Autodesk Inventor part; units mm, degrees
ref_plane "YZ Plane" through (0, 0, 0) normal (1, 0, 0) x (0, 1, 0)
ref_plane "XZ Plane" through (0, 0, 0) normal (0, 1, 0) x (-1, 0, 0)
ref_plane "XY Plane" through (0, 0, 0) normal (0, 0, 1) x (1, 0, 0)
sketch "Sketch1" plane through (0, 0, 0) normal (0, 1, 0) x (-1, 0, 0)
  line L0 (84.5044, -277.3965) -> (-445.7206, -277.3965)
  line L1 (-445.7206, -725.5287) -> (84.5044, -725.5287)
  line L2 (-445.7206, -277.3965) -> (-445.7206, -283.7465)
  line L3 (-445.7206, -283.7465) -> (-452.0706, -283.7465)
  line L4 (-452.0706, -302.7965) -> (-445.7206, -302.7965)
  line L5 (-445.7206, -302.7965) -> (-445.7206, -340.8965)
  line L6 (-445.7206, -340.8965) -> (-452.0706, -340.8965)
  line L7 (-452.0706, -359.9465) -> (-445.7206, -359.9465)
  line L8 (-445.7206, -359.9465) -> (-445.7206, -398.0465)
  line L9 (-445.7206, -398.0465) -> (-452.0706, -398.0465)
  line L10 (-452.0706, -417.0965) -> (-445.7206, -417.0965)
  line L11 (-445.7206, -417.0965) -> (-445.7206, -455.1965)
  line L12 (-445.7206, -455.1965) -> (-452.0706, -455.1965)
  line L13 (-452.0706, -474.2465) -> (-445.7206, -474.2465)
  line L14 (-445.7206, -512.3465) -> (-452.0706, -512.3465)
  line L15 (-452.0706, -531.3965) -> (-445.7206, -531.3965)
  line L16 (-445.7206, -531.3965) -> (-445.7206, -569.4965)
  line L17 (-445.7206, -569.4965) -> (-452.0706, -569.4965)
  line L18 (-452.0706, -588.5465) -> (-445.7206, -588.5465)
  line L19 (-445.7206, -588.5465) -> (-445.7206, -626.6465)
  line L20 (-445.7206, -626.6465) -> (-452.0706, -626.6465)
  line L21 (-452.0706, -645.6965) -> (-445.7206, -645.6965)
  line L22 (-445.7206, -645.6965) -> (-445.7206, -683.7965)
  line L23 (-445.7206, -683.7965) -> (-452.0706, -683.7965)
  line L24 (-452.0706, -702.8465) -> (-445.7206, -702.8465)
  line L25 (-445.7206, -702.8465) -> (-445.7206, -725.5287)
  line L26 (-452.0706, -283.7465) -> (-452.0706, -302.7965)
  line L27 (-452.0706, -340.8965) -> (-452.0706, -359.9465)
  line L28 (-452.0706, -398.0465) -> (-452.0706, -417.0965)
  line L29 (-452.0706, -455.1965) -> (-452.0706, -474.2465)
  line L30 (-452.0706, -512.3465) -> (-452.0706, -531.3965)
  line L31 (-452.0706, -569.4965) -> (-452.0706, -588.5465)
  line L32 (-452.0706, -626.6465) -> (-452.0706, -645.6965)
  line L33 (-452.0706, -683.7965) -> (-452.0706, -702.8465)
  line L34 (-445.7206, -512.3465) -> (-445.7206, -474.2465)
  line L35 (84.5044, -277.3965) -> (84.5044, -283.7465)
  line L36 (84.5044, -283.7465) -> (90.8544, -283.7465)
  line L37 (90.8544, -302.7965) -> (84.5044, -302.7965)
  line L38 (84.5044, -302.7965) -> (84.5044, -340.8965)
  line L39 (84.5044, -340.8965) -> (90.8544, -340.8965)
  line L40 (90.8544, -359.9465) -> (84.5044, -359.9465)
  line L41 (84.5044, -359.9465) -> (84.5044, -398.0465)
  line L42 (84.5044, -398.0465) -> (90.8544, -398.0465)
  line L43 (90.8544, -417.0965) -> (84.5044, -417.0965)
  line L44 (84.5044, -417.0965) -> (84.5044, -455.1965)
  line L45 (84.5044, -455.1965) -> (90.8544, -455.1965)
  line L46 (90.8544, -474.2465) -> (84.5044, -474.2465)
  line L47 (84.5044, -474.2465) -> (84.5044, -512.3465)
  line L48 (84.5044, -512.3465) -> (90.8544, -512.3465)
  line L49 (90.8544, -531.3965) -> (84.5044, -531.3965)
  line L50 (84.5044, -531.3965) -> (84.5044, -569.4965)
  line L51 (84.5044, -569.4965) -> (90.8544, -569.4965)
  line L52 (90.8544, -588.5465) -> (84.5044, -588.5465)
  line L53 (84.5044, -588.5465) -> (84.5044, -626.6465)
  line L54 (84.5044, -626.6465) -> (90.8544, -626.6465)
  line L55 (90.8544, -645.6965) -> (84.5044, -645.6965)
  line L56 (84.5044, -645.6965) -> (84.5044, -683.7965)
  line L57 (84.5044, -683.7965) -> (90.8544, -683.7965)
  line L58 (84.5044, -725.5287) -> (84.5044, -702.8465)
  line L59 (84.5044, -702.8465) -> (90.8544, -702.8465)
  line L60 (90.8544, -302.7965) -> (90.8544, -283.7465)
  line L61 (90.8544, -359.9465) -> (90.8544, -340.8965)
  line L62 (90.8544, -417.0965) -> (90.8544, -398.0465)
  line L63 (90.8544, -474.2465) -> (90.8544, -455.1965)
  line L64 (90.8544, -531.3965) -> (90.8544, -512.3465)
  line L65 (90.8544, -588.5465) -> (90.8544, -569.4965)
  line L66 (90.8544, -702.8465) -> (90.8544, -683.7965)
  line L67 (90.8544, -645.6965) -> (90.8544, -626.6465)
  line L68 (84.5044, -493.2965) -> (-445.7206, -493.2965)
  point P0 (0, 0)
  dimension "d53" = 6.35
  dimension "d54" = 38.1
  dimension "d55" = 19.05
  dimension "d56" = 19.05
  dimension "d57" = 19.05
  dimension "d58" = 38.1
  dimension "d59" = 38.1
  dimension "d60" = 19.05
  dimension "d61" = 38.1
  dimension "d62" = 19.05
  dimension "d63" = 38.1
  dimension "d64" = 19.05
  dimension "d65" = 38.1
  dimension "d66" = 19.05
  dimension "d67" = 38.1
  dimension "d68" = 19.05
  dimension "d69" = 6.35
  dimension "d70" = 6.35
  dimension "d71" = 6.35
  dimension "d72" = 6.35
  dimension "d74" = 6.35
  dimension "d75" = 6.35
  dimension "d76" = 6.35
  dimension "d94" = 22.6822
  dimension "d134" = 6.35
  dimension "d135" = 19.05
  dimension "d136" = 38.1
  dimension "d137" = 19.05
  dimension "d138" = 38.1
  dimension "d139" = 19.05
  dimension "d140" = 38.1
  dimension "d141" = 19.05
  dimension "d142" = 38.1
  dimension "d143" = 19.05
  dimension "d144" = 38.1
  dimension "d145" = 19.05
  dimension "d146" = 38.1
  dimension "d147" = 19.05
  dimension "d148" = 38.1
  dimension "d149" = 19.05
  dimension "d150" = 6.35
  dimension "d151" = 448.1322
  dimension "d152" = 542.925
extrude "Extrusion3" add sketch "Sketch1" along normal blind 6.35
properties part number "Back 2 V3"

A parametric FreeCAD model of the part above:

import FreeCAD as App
import Part
import Sketcher

V = App.Vector
Q = App.Units.Quantity

doc = App.newDocument("Part")
params = doc.addObject("Spreadsheet::Sheet", "Params")
for row, (alias, value) in enumerate([
    ("sketch1_height", "1.5 in"),
    ("sketch1_width", "0.25 in"),
    ("sketch1_height2", "0.75 in"),
    ("sketch1_height3", "0.893 in"),
    ("sketch1_width2", "20.875 in"),
    ("pad1_length", "0.25 in"),
], start=1):
    params.set(f"A{row}", alias)
    params.set(f"B{row}", "=" + value)
    params.setAlias(f"B{row}", alias)

body = doc.addObject("PartDesign::Body", "Body")

# Sketch on XZ plane
sketch1 = body.newObject("Sketcher::SketchObject", "Sketch")
sketch1.AttachmentSupport = (doc.getObject("XZ_Plane"), [""])
sketch1.MapMode = "FlatFace"
sketch1.addGeometry(Part.LineSegment(V(-85, -284, 0), V(-85, -277, 0)), False)
sketch1.addGeometry(Part.LineSegment(V(-85, -277, 0), V(446, -277, 0)), False)
sketch1.addGeometry(Part.LineSegment(V(446, -277, 0), V(446, -284, 0)), False)
sketch1.addGeometry(Part.LineSegment(V(446, -284, 0), V(452, -284, 0)), False)
sketch1.addGeometry(Part.LineSegment(V(452, -284, 0), V(452, -303, 0)), False)
sketch1.addGeometry(Part.LineSegment(V(452, -303, 0), V(446, -303, 0)), False)
sketch1.addGeometry(Part.LineSegment(V(446, -303, 0), V(446, -341, 0)), False)
sketch1.addGeometry(Part.LineSegment(V(446, -341, 0), V(452, -341, 0)), False)
sketch1.addGeometry(Part.LineSegment(V(452, -341, 0), V(452, -360, 0)), False)
sketch1.addGeometry(Part.LineSegment(V(452, -360, 0), V(446, -360, 0)), False)
sketch1.addGeometry(Part.LineSegment(V(446, -360, 0), V(446, -398, 0)), False)
sketch1.addGeometry(Part.LineSegment(V(446, -398, 0), V(452, -398, 0)), False)
sketch1.addGeometry(Part.LineSegment(V(452, -398, 0), V(452, -417, 0)), False)
sketch1.addGeometry(Part.LineSegment(V(452, -417, 0), V(446, -417, 0)), False)
sketch1.addGeometry(Part.LineSegment(V(446, -417, 0), V(446, -455, 0)), False)
sketch1.addGeometry(Part.LineSegment(V(446, -455, 0), V(452, -455, 0)), False)
sketch1.addGeometry(Part.LineSegment(V(452, -455, 0), V(452, -474, 0)), False)
sketch1.addGeometry(Part.LineSegment(V(452, -474, 0), V(446, -474, 0)), False)
sketch1.addGeometry(Part.LineSegment(V(446, -474, 0), V(446, -512, 0)), False)
sketch1.addGeometry(Part.LineSegment(V(446, -512, 0), V(452, -512, 0)), False)
sketch1.addGeometry(Part.LineSegment(V(452, -512, 0), V(452, -531, 0)), False)
sketch1.addGeometry(Part.LineSegment(V(452, -531, 0), V(446, -531, 0)), False)
sketch1.addGeometry(Part.LineSegment(V(446, -531, 0), V(446, -569, 0)), False)
sketch1.addGeometry(Part.LineSegment(V(446, -569, 0), V(452, -569, 0)), False)
sketch1.addGeometry(Part.LineSegment(V(452, -569, 0), V(452, -589, 0)), False)
sketch1.addGeometry(Part.LineSegment(V(452, -589, 0), V(446, -589, 0)), False)
sketch1.addGeometry(Part.LineSegment(V(446, -589, 0), V(446, -627, 0)), False)
sketch1.addGeometry(Part.LineSegment(V(446, -627, 0), V(452, -627, 0)), False)
sketch1.addGeometry(Part.LineSegment(V(452, -627, 0), V(452, -646, 0)), False)
sketch1.addGeometry(Part.LineSegment(V(452, -646, 0), V(446, -646, 0)), False)
sketch1.addGeometry(Part.LineSegment(V(446, -646, 0), V(446, -684, 0)), False)
sketch1.addGeometry(Part.LineSegment(V(446, -684, 0), V(452, -684, 0)), False)
sketch1.addGeometry(Part.LineSegment(V(452, -684, 0), V(452, -703, 0)), False)
sketch1.addGeometry(Part.LineSegment(V(452, -703, 0), V(446, -703, 0)), False)
sketch1.addGeometry(Part.LineSegment(V(446, -703, 0), V(446, -726, 0)), False)
sketch1.addGeometry(Part.LineSegment(V(446, -726, 0), V(-85, -726, 0)), False)
sketch1.addGeometry(Part.LineSegment(V(-85, -726, 0), V(-85, -703, 0)), False)
sketch1.addGeometry(Part.LineSegment(V(-85, -703, 0), V(-91, -703, 0)), False)
sketch1.addGeometry(Part.LineSegment(V(-91, -703, 0), V(-91, -684, 0)), False)
sketch1.addGeometry(Part.LineSegment(V(-91, -684, 0), V(-85, -684, 0)), False)
sketch1.addGeometry(Part.LineSegment(V(-85, -684, 0), V(-85, -646, 0)), False)
sketch1.addGeometry(Part.LineSegment(V(-85, -646, 0), V(-91, -646, 0)), False)
sketch1.addGeometry(Part.LineSegment(V(-91, -646, 0), V(-91, -627, 0)), False)
sketch1.addGeometry(Part.LineSegment(V(-91, -627, 0), V(-85, -627, 0)), False)
sketch1.addGeometry(Part.LineSegment(V(-85, -627, 0), V(-85, -589, 0)), False)
sketch1.addGeometry(Part.LineSegment(V(-85, -589, 0), V(-91, -589, 0)), False)
sketch1.addGeometry(Part.LineSegment(V(-91, -589, 0), V(-91, -569, 0)), False)
sketch1.addGeometry(Part.LineSegment(V(-91, -569, 0), V(-85, -569, 0)), False)
sketch1.addGeometry(Part.LineSegment(V(-85, -569, 0), V(-85, -531, 0)), False)
sketch1.addGeometry(Part.LineSegment(V(-85, -531, 0), V(-91, -531, 0)), False)
sketch1.addGeometry(Part.LineSegment(V(-91, -531, 0), V(-91, -512, 0)), False)
sketch1.addGeometry(Part.LineSegment(V(-91, -512, 0), V(-85, -512, 0)), False)
sketch1.addGeometry(Part.LineSegment(V(-85, -512, 0), V(-85, -474, 0)), False)
sketch1.addGeometry(Part.LineSegment(V(-85, -474, 0), V(-91, -474, 0)), False)
sketch1.addGeometry(Part.LineSegment(V(-91, -474, 0), V(-91, -455, 0)), False)
sketch1.addGeometry(Part.LineSegment(V(-91, -455, 0), V(-85, -455, 0)), False)
sketch1.addGeometry(Part.LineSegment(V(-85, -455, 0), V(-85, -417, 0)), False)
sketch1.addGeometry(Part.LineSegment(V(-85, -417, 0), V(-91, -417, 0)), False)
sketch1.addGeometry(Part.LineSegment(V(-91, -417, 0), V(-91, -398, 0)), False)
sketch1.addGeometry(Part.LineSegment(V(-91, -398, 0), V(-85, -398, 0)), False)
sketch1.addGeometry(Part.LineSegment(V(-85, -398, 0), V(-85, -360, 0)), False)
sketch1.addGeometry(Part.LineSegment(V(-85, -360, 0), V(-91, -360, 0)), False)
sketch1.addGeometry(Part.LineSegment(V(-91, -360, 0), V(-91, -341, 0)), False)
sketch1.addGeometry(Part.LineSegment(V(-91, -341, 0), V(-85, -341, 0)), False)
sketch1.addGeometry(Part.LineSegment(V(-85, -341, 0), V(-85, -303, 0)), False)
sketch1.addGeometry(Part.LineSegment(V(-85, -303, 0), V(-91, -303, 0)), False)
sketch1.addGeometry(Part.LineSegment(V(-91, -303, 0), V(-91, -284, 0)), False)
sketch1.addGeometry(Part.LineSegment(V(-91, -284, 0), V(-85, -284, 0)), False)
sketch1.addConstraint(Sketcher.Constraint("Coincident", 0, 2, 1, 1))
sketch1.addConstraint(Sketcher.Constraint("Coincident", 1, 2, 2, 1))
sketch1.addConstraint(Sketcher.Constraint("Coincident", 2, 2, 3, 1))
sketch1.addConstraint(Sketcher.Constraint("Coincident", 3, 2, 4, 1))
sketch1.addConstraint(Sketcher.Constraint("Coincident", 4, 2, 5, 1))
sketch1.addConstraint(Sketcher.Constraint("Coincident", 5, 2, 6, 1))
sketch1.addConstraint(Sketcher.Constraint("Coincident", 6, 2, 7, 1))
sketch1.addConstraint(Sketcher.Constraint("Coincident", 7, 2, 8, 1))
sketch1.addConstraint(Sketcher.Constraint("Coincident", 8, 2, 9, 1))
sketch1.addConstraint(Sketcher.Constraint("Coincident", 9, 2, 10, 1))
sketch1.addConstraint(Sketcher.Constraint("Coincident", 10, 2, 11, 1))
sketch1.addConstraint(Sketcher.Constraint("Coincident", 11, 2, 12, 1))
sketch1.addConstraint(Sketcher.Constraint("Coincident", 12, 2, 13, 1))
sketch1.addConstraint(Sketcher.Constraint("Coincident", 13, 2, 14, 1))
sketch1.addConstraint(Sketcher.Constraint("Coincident", 14, 2, 15, 1))
sketch1.addConstraint(Sketcher.Constraint("Coincident", 15, 2, 16, 1))
sketch1.addConstraint(Sketcher.Constraint("Coincident", 16, 2, 17, 1))
sketch1.addConstraint(Sketcher.Constraint("Coincident", 17, 2, 18, 1))
sketch1.addConstraint(Sketcher.Constraint("Coincident", 18, 2, 19, 1))
sketch1.addConstraint(Sketcher.Constraint("Coincident", 19, 2, 20, 1))
sketch1.addConstraint(Sketcher.Constraint("Coincident", 20, 2, 21, 1))
sketch1.addConstraint(Sketcher.Constraint("Coincident", 21, 2, 22, 1))
sketch1.addConstraint(Sketcher.Constraint("Coincident", 22, 2, 23, 1))
sketch1.addConstraint(Sketcher.Constraint("Coincident", 23, 2, 24, 1))
sketch1.addConstraint(Sketcher.Constraint("Coincident", 24, 2, 25, 1))
sketch1.addConstraint(Sketcher.Constraint("Coincident", 25, 2, 26, 1))
sketch1.addConstraint(Sketcher.Constraint("Coincident", 26, 2, 27, 1))
sketch1.addConstraint(Sketcher.Constraint("Coincident", 27, 2, 28, 1))
sketch1.addConstraint(Sketcher.Constraint("Coincident", 28, 2, 29, 1))
sketch1.addConstraint(Sketcher.Constraint("Coincident", 29, 2, 30, 1))
sketch1.addConstraint(Sketcher.Constraint("Coincident", 30, 2, 31, 1))
sketch1.addConstraint(Sketcher.Constraint("Coincident", 31, 2, 32, 1))
sketch1.addConstraint(Sketcher.Constraint("Coincident", 32, 2, 33, 1))
sketch1.addConstraint(Sketcher.Constraint("Coincident", 33, 2, 34, 1))
sketch1.addConstraint(Sketcher.Constraint("Coincident", 34, 2, 35, 1))
sketch1.addConstraint(Sketcher.Constraint("Coincident", 35, 2, 36, 1))
sketch1.addConstraint(Sketcher.Constraint("Coincident", 36, 2, 37, 1))
sketch1.addConstraint(Sketcher.Constraint("Coincident", 37, 2, 38, 1))
sketch1.addConstraint(Sketcher.Constraint("Coincident", 38, 2, 39, 1))
sketch1.addConstraint(Sketcher.Constraint("Coincident", 39, 2, 40, 1))
sketch1.addConstraint(Sketcher.Constraint("Coincident", 40, 2, 41, 1))
sketch1.addConstraint(Sketcher.Constraint("Coincident", 41, 2, 42, 1))
sketch1.addConstraint(Sketcher.Constraint("Coincident", 42, 2, 43, 1))
sketch1.addConstraint(Sketcher.Constraint("Coincident", 43, 2, 44, 1))
sketch1.addConstraint(Sketcher.Constraint("Coincident", 44, 2, 45, 1))
sketch1.addConstraint(Sketcher.Constraint("Coincident", 45, 2, 46, 1))
sketch1.addConstraint(Sketcher.Constraint("Coincident", 46, 2, 47, 1))
sketch1.addConstraint(Sketcher.Constraint("Coincident", 47, 2, 48, 1))
sketch1.addConstraint(Sketcher.Constraint("Coincident", 48, 2, 49, 1))
sketch1.addConstraint(Sketcher.Constraint("Coincident", 49, 2, 50, 1))
sketch1.addConstraint(Sketcher.Constraint("Coincident", 50, 2, 51, 1))
sketch1.addConstraint(Sketcher.Constraint("Coincident", 51, 2, 52, 1))
sketch1.addConstraint(Sketcher.Constraint("Coincident", 52, 2, 53, 1))
sketch1.addConstraint(Sketcher.Constraint("Coincident", 53, 2, 54, 1))
sketch1.addConstraint(Sketcher.Constraint("Coincident", 54, 2, 55, 1))
sketch1.addConstraint(Sketcher.Constraint("Coincident", 55, 2, 56, 1))
sketch1.addConstraint(Sketcher.Constraint("Coincident", 56, 2, 57, 1))
sketch1.addConstraint(Sketcher.Constraint("Coincident", 57, 2, 58, 1))
sketch1.addConstraint(Sketcher.Constraint("Coincident", 58, 2, 59, 1))
sketch1.addConstraint(Sketcher.Constraint("Coincident", 59, 2, 60, 1))
sketch1.addConstraint(Sketcher.Constraint("Coincident", 60, 2, 61, 1))
sketch1.addConstraint(Sketcher.Constraint("Coincident", 61, 2, 62, 1))
sketch1.addConstraint(Sketcher.Constraint("Coincident", 62, 2, 63, 1))
sketch1.addConstraint(Sketcher.Constraint("Coincident", 63, 2, 64, 1))
sketch1.addConstraint(Sketcher.Constraint("Coincident", 64, 2, 65, 1))
sketch1.addConstraint(Sketcher.Constraint("Coincident", 65, 2, 66, 1))
sketch1.addConstraint(Sketcher.Constraint("Coincident", 66, 2, 67, 1))
sketch1.addConstraint(Sketcher.Constraint("Coincident", 67, 2, 0, 1))
sketch1.addConstraint(Sketcher.Constraint("Vertical", 0))
sketch1.addConstraint(Sketcher.Constraint("Horizontal", 1))
sketch1.addConstraint(Sketcher.Constraint("Vertical", 2))
sketch1.addConstraint(Sketcher.Constraint("Horizontal", 3))
sketch1.addConstraint(Sketcher.Constraint("Vertical", 4))
sketch1.addConstraint(Sketcher.Constraint("Horizontal", 5))
sketch1.addConstraint(Sketcher.Constraint("Vertical", 6))
sketch1.addConstraint(Sketcher.Constraint("Horizontal", 7))
sketch1.addConstraint(Sketcher.Constraint("Vertical", 8))
sketch1.addConstraint(Sketcher.Constraint("Horizontal", 9))
sketch1.addConstraint(Sketcher.Constraint("Vertical", 10))
sketch1.addConstraint(Sketcher.Constraint("Horizontal", 11))
sketch1.addConstraint(Sketcher.Constraint("Vertical", 12))
sketch1.addConstraint(Sketcher.Constraint("Horizontal", 13))
sketch1.addConstraint(Sketcher.Constraint("Vertical", 14))
sketch1.addConstraint(Sketcher.Constraint("Horizontal", 15))
sketch1.addConstraint(Sketcher.Constraint("Vertical", 16))
sketch1.addConstraint(Sketcher.Constraint("Horizontal", 17))
sketch1.addConstraint(Sketcher.Constraint("Vertical", 18))
sketch1.addConstraint(Sketcher.Constraint("Horizontal", 19))
sketch1.addConstraint(Sketcher.Constraint("Vertical", 20))
sketch1.addConstraint(Sketcher.Constraint("Horizontal", 21))
sketch1.addConstraint(Sketcher.Constraint("Vertical", 22))
sketch1.addConstraint(Sketcher.Constraint("Horizontal", 23))
sketch1.addConstraint(Sketcher.Constraint("Vertical", 24))
sketch1.addConstraint(Sketcher.Constraint("Horizontal", 25))
sketch1.addConstraint(Sketcher.Constraint("Vertical", 26))
sketch1.addConstraint(Sketcher.Constraint("Horizontal", 27))
sketch1.addConstraint(Sketcher.Constraint("Vertical", 28))
sketch1.addConstraint(Sketcher.Constraint("Horizontal", 29))
sketch1.addConstraint(Sketcher.Constraint("Vertical", 30))
sketch1.addConstraint(Sketcher.Constraint("Horizontal", 31))
sketch1.addConstraint(Sketcher.Constraint("Vertical", 32))
sketch1.addConstraint(Sketcher.Constraint("Horizontal", 33))
sketch1.addConstraint(Sketcher.Constraint("Vertical", 34))
sketch1.addConstraint(Sketcher.Constraint("Horizontal", 35))
sketch1.addConstraint(Sketcher.Constraint("Vertical", 36))
sketch1.addConstraint(Sketcher.Constraint("Horizontal", 37))
sketch1.addConstraint(Sketcher.Constraint("Vertical", 38))
sketch1.addConstraint(Sketcher.Constraint("Horizontal", 39))
sketch1.addConstraint(Sketcher.Constraint("Vertical", 40))
sketch1.addConstraint(Sketcher.Constraint("Horizontal", 41))
sketch1.addConstraint(Sketcher.Constraint("Vertical", 42))
sketch1.addConstraint(Sketcher.Constraint("Horizontal", 43))
sketch1.addConstraint(Sketcher.Constraint("Vertical", 44))
sketch1.addConstraint(Sketcher.Constraint("Horizontal", 45))
sketch1.addConstraint(Sketcher.Constraint("Vertical", 46))
sketch1.addConstraint(Sketcher.Constraint("Horizontal", 47))
sketch1.addConstraint(Sketcher.Constraint("Vertical", 48))
sketch1.addConstraint(Sketcher.Constraint("Horizontal", 49))
sketch1.addConstraint(Sketcher.Constraint("Vertical", 50))
sketch1.addConstraint(Sketcher.Constraint("Horizontal", 51))
sketch1.addConstraint(Sketcher.Constraint("Vertical", 52))
sketch1.addConstraint(Sketcher.Constraint("Horizontal", 53))
sketch1.addConstraint(Sketcher.Constraint("Vertical", 54))
sketch1.addConstraint(Sketcher.Constraint("Horizontal", 55))
sketch1.addConstraint(Sketcher.Constraint("Vertical", 56))
sketch1.addConstraint(Sketcher.Constraint("Horizontal", 57))
sketch1.addConstraint(Sketcher.Constraint("Vertical", 58))
sketch1.addConstraint(Sketcher.Constraint("Horizontal", 59))
sketch1.addConstraint(Sketcher.Constraint("Vertical", 60))
sketch1.addConstraint(Sketcher.Constraint("Horizontal", 61))
sketch1.addConstraint(Sketcher.Constraint("Vertical", 62))
sketch1.addConstraint(Sketcher.Constraint("Horizontal", 63))
sketch1.addConstraint(Sketcher.Constraint("Vertical", 64))
sketch1.addConstraint(Sketcher.Constraint("Horizontal", 65))
sketch1.addConstraint(Sketcher.Constraint("Vertical", 66))
sketch1.addConstraint(Sketcher.Constraint("Horizontal", 67))
sketch1.addConstraint(Sketcher.Constraint("Horizontal", 33, 2, 36, 2))
sketch1.addConstraint(Sketcher.Constraint("Horizontal", 31, 2, 38, 2))
sketch1.addConstraint(Sketcher.Constraint("Horizontal", 29, 2, 40, 2))
sketch1.addConstraint(Sketcher.Constraint("Horizontal", 27, 2, 42, 2))
sketch1.addConstraint(Sketcher.Constraint("Horizontal", 25, 2, 44, 2))
sketch1.addConstraint(Sketcher.Constraint("Horizontal", 23, 2, 46, 2))
sketch1.addConstraint(Sketcher.Constraint("Horizontal", 21, 2, 48, 2))
sketch1.addConstraint(Sketcher.Constraint("Horizontal", 19, 2, 50, 2))
sketch1.addConstraint(Sketcher.Constraint("Horizontal", 17, 2, 52, 2))
sketch1.addConstraint(Sketcher.Constraint("Horizontal", 15, 2, 54, 2))
sketch1.addConstraint(Sketcher.Constraint("Horizontal", 13, 2, 56, 2))
sketch1.addConstraint(Sketcher.Constraint("Horizontal", 11, 2, 58, 2))
sketch1.addConstraint(Sketcher.Constraint("Horizontal", 9, 2, 60, 2))
sketch1.addConstraint(Sketcher.Constraint("Horizontal", 7, 2, 62, 2))
sketch1.addConstraint(Sketcher.Constraint("Horizontal", 5, 2, 64, 2))
sketch1.addConstraint(Sketcher.Constraint("Horizontal", 3, 2, 66, 2))
sketch1.addConstraint(Sketcher.Constraint("Vertical", 2, 2, 5, 2))
sketch1.addConstraint(Sketcher.Constraint("Vertical", 4, 2, 7, 2))
sketch1.addConstraint(Sketcher.Constraint("Vertical", 6, 2, 9, 2))
sketch1.addConstraint(Sketcher.Constraint("Vertical", 8, 2, 11, 2))
sketch1.addConstraint(Sketcher.Constraint("Vertical", 10, 2, 13, 2))
sketch1.addConstraint(Sketcher.Constraint("Vertical", 12, 2, 15, 2))
sketch1.addConstraint(Sketcher.Constraint("Vertical", 14, 2, 17, 2))
sketch1.addConstraint(Sketcher.Constraint("Vertical", 16, 2, 19, 2))
sketch1.addConstraint(Sketcher.Constraint("Vertical", 18, 2, 21, 2))
sketch1.addConstraint(Sketcher.Constraint("Vertical", 20, 2, 23, 2))
sketch1.addConstraint(Sketcher.Constraint("Vertical", 22, 2, 25, 2))
sketch1.addConstraint(Sketcher.Constraint("Vertical", 24, 2, 27, 2))
sketch1.addConstraint(Sketcher.Constraint("Vertical", 26, 2, 29, 2))
sketch1.addConstraint(Sketcher.Constraint("Vertical", 28, 2, 31, 2))
sketch1.addConstraint(Sketcher.Constraint("Vertical", 30, 2, 33, 2))
sketch1.addConstraint(Sketcher.Constraint("Vertical", 0, 2, 35, 2))
sketch1.addConstraint(Sketcher.Constraint("Vertical", 36, 2, 39, 2))
sketch1.addConstraint(Sketcher.Constraint("Vertical", 38, 2, 41, 2))
sketch1.addConstraint(Sketcher.Constraint("Vertical", 40, 2, 43, 2))
sketch1.addConstraint(Sketcher.Constraint("Vertical", 42, 2, 45, 2))
sketch1.addConstraint(Sketcher.Constraint("Vertical", 44, 2, 47, 2))
sketch1.addConstraint(Sketcher.Constraint("Vertical", 46, 2, 49, 2))
sketch1.addConstraint(Sketcher.Constraint("Vertical", 48, 2, 51, 2))
sketch1.addConstraint(Sketcher.Constraint("Vertical", 50, 2, 53, 2))
sketch1.addConstraint(Sketcher.Constraint("Vertical", 52, 2, 55, 2))
sketch1.addConstraint(Sketcher.Constraint("Vertical", 54, 2, 57, 2))
sketch1.addConstraint(Sketcher.Constraint("Vertical", 56, 2, 59, 2))
sketch1.addConstraint(Sketcher.Constraint("Vertical", 58, 2, 61, 2))
sketch1.addConstraint(Sketcher.Constraint("Vertical", 60, 2, 63, 2))
sketch1.addConstraint(Sketcher.Constraint("Vertical", 62, 2, 65, 2))
sketch1.addConstraint(Sketcher.Constraint("Equal", 33, 37))
sketch1.addConstraint(Sketcher.Constraint("Equal", 67, 0))
sketch1.addConstraint(Sketcher.Constraint("Equal", 4, 8))
sketch1.addConstraint(Sketcher.Constraint("Equal", 6, 10))
sketch1.addConstraint(Sketcher.Constraint("Equal", 8, 12))
sketch1.addConstraint(Sketcher.Constraint("Equal", 10, 14))
sketch1.addConstraint(Sketcher.Constraint("Equal", 12, 16))
sketch1.addConstraint(Sketcher.Constraint("Equal", 14, 18))
sketch1.addConstraint(Sketcher.Constraint("Equal", 16, 20))
sketch1.addConstraint(Sketcher.Constraint("Equal", 18, 22))
sketch1.addConstraint(Sketcher.Constraint("Equal", 20, 24))
sketch1.addConstraint(Sketcher.Constraint("Equal", 22, 26))
sketch1.addConstraint(Sketcher.Constraint("Equal", 24, 28))
sketch1.addConstraint(Sketcher.Constraint("Equal", 26, 30))
sketch1.addConstraint(Sketcher.Constraint("Equal", 28, 32))
sketch1.addConstraint(Sketcher.Constraint("DistanceY", 6, 2, 6, 1, Q("1.5 in")))
sketch1.addConstraint(Sketcher.Constraint("DistanceX", 3, 1, 3, 2, Q("0.25 in")))
sketch1.addConstraint(Sketcher.Constraint("DistanceY", 4, 2, 4, 1, Q("0.75 in")))
sketch1.addConstraint(Sketcher.Constraint("DistanceY", 34, 2, 34, 1, Q("0.893 in")))
sketch1.addConstraint(Sketcher.Constraint("DistanceX", 1, 1, 1, 2, Q("20.875 in")))
sketch1.addConstraint(Sketcher.Constraint("DistanceX", 0, 2, -1, 1, 84.5044))
sketch1.addConstraint(Sketcher.Constraint("DistanceY", 0, 2, -1, 1, 277.3965))
sketch1.setExpression("Constraints[197]", "Params.sketch1_height")
sketch1.setExpression("Constraints[198]", "Params.sketch1_width")
sketch1.setExpression("Constraints[199]", "Params.sketch1_height2")
sketch1.setExpression("Constraints[200]", "Params.sketch1_height3")
sketch1.setExpression("Constraints[201]", "Params.sketch1_width2")
pad1 = body.newObject("PartDesign::Pad", "Pad")
pad1.Profile = sketch1
pad1.setExpression("Length", "Params.pad1_length")
pad1.Reversed = True

doc.recompute()
